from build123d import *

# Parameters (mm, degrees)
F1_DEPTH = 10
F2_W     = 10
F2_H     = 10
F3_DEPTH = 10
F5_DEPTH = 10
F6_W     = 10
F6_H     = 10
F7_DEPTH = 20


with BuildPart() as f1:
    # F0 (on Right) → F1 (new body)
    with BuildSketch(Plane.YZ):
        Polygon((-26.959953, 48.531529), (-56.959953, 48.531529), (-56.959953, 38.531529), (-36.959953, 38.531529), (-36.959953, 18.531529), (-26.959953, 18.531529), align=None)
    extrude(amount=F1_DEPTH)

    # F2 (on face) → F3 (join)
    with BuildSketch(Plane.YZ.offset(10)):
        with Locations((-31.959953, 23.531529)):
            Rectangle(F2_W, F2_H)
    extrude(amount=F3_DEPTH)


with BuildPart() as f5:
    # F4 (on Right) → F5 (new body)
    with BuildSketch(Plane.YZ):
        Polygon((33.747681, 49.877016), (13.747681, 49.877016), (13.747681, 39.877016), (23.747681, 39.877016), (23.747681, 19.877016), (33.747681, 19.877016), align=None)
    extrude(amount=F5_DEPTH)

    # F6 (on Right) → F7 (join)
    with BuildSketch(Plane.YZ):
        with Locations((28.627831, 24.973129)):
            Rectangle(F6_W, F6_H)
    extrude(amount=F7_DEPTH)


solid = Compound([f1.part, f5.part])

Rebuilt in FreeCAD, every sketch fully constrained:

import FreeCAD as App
import Part
import Sketcher

V = App.Vector

doc = App.newDocument("Part")
body = doc.addObject("PartDesign::Body", "Body")

# Sketch on YZ plane
sketch1 = body.newObject("Sketcher::SketchObject", "Sketch")
sketch1.AttachmentSupport = (doc.getObject("YZ_Plane"), [""])
sketch1.MapMode = "FlatFace"
sketch1.addGeometry(Part.LineSegment(V(-26.959953, 48.531529, 0), V(-56.959953, 48.531529, 0)), False)
sketch1.addGeometry(Part.LineSegment(V(-56.959953, 48.531529, 0), V(-56.959953, 38.531529, 0)), False)
sketch1.addGeometry(Part.LineSegment(V(-56.959953, 38.531529, 0), V(-36.959953, 38.531529, 0)), False)
sketch1.addGeometry(Part.LineSegment(V(-36.959953, 38.531529, 0), V(-36.959953, 18.531529, 0)), False)
sketch1.addGeometry(Part.LineSegment(V(-36.959953, 18.531529, 0), V(-26.959953, 18.531529, 0)), False)
sketch1.addGeometry(Part.LineSegment(V(-26.959953, 18.531529, 0), V(-26.959953, 48.531529, 0)), False)
sketch1.addConstraint(Sketcher.Constraint("Coincident", 0, 2, 1, 1))
sketch1.addConstraint(Sketcher.Constraint("Coincident", 1, 2, 2, 1))
sketch1.addConstraint(Sketcher.Constraint("Coincident", 2, 2, 3, 1))
sketch1.addConstraint(Sketcher.Constraint("Coincident", 3, 2, 4, 1))
sketch1.addConstraint(Sketcher.Constraint("Coincident", 4, 2, 5, 1))
sketch1.addConstraint(Sketcher.Constraint("Coincident", 5, 2, 0, 1))
sketch1.addConstraint(Sketcher.Constraint("Horizontal", 0))
sketch1.addConstraint(Sketcher.Constraint("Vertical", 1))
sketch1.addConstraint(Sketcher.Constraint("Horizontal", 2))
sketch1.addConstraint(Sketcher.Constraint("Vertical", 3))
sketch1.addConstraint(Sketcher.Constraint("Horizontal", 4))
sketch1.addConstraint(Sketcher.Constraint("Vertical", 5))
sketch1.addConstraint(Sketcher.Constraint("Equal", 4, 1))
sketch1.addConstraint(Sketcher.Constraint("Equal", 2, 3))
sketch1.addConstraint(Sketcher.Constraint("DistanceX", 0, 2, 0, 1, 30.0))
sketch1.addConstraint(Sketcher.Constraint("DistanceX", 2, 1, 2, 2, 20.0))
sketch1.addConstraint(Sketcher.Constraint("DistanceY", -1, 1, 0, 2, 48.531529))
sketch1.addConstraint(Sketcher.Constraint("DistanceX", 0, 2, -1, 1, 56.959953))
pad1 = body.newObject("PartDesign::Pad", "Pad")
pad1.Profile = sketch1
pad1.Length = 10

# Sketch on YZ plane
sketch2 = body.newObject("Sketcher::SketchObject", "Sketch001")
sketch2.AttachmentSupport = (doc.getObject("YZ_Plane"), [""])
sketch2.MapMode = "FlatFace"
sketch2.AttachmentOffset = App.Placement(V(0, 0, 10), App.Rotation())
sketch2.addGeometry(Part.LineSegment(V(-36.959953, 28.531529, 0), V(-36.959953, 18.531529, 0)), False)
sketch2.addGeometry(Part.LineSegment(V(-36.959953, 18.531529, 0), V(-26.959953, 18.531529, 0)), False)
sketch2.addGeometry(Part.LineSegment(V(-26.959953, 18.531529, 0), V(-26.959953, 28.531529, 0)), False)
sketch2.addGeometry(Part.LineSegment(V(-26.959953, 28.531529, 0), V(-36.959953, 28.531529, 0)), False)
sketch2.addConstraint(Sketcher.Constraint("Coincident", 0, 2, 1, 1))
sketch2.addConstraint(Sketcher.Constraint("Coincident", 1, 2, 2, 1))
sketch2.addConstraint(Sketcher.Constraint("Coincident", 2, 2, 3, 1))
sketch2.addConstraint(Sketcher.Constraint("Coincident", 3, 2, 0, 1))
sketch2.addConstraint(Sketcher.Constraint("Vertical", 0))
sketch2.addConstraint(Sketcher.Constraint("Horizontal", 1))
sketch2.addConstraint(Sketcher.Constraint("Vertical", 2))
sketch2.addConstraint(Sketcher.Constraint("Horizontal", 3))
sketch2.addConstraint(Sketcher.Constraint("Equal", 3, 0))
sketch2.addConstraint(Sketcher.Constraint("DistanceX", 1, 1, 1, 2, 10.0))
sketch2.addConstraint(Sketcher.Constraint("DistanceY", -1, 1, 0, 2, 18.531529))
sketch2.addConstraint(Sketcher.Constraint("DistanceX", 0, 2, -1, 1, 36.959953))
pad2 = body.newObject("PartDesign::Pad", "Pad001")
pad2.Profile = sketch2
pad2.Length = 10
body2 = doc.addObject("PartDesign::Body", "Body001")

# Sketch on YZ plane
sketch3 = body2.newObject("Sketcher::SketchObject", "Sketch002")
sketch3.AttachmentSupport = (doc.getObject("YZ_Plane001"), [""])
sketch3.MapMode = "FlatFace"
sketch3.addGeometry(Part.LineSegment(V(33.747681, 49.877016, 0), V(13.747681, 49.877016, 0)), False)
sketch3.addGeometry(Part.LineSegment(V(13.747681, 49.877016, 0), V(13.747681, 39.877016, 0)), False)
sketch3.addGeometry(Part.LineSegment(V(13.747681, 39.877016, 0), V(23.747681, 39.877016, 0)), False)
sketch3.addGeometry(Part.LineSegment(V(23.747681, 39.877016, 0), V(23.747681, 19.877016, 0)), False)
sketch3.addGeometry(Part.LineSegment(V(23.747681, 19.877016, 0), V(33.747681, 19.877016, 0)), False)
sketch3.addGeometry(Part.LineSegment(V(33.747681, 19.877016, 0), V(33.747681, 49.877016, 0)), False)
sketch3.addConstraint(Sketcher.Constraint("Coincident", 0, 2, 1, 1))
sketch3.addConstraint(Sketcher.Constraint("Coincident", 1, 2, 2, 1))
sketch3.addConstraint(Sketcher.Constraint("Coincident", 2, 2, 3, 1))
sketch3.addConstraint(Sketcher.Constraint("Coincident", 3, 2, 4, 1))
sketch3.addConstraint(Sketcher.Constraint("Coincident", 4, 2, 5, 1))
sketch3.addConstraint(Sketcher.Constraint("Coincident", 5, 2, 0, 1))
sketch3.addConstraint(Sketcher.Constraint("Horizontal", 0))
sketch3.addConstraint(Sketcher.Constraint("Vertical", 1))
sketch3.addConstraint(Sketcher.Constraint("Horizontal", 2))
sketch3.addConstraint(Sketcher.Constraint("Vertical", 3))
sketch3.addConstraint(Sketcher.Constraint("Horizontal", 4))
sketch3.addConstraint(Sketcher.Constraint("Vertical", 5))
sketch3.addConstraint(Sketcher.Constraint("Equal", 2, 4))
sketch3.addConstraint(Sketcher.Constraint("Equal", 4, 1))
sketch3.addConstraint(Sketcher.Constraint("Equal", 0, 3))
sketch3.addConstraint(Sketcher.Constraint("DistanceX", 0, 2, 0, 1, 20.0))
sketch3.addConstraint(Sketcher.Constraint("DistanceX", -1, 1, 0, 2, 13.747681))
sketch3.addConstraint(Sketcher.Constraint("DistanceY", -1, 1, 0, 2, 49.877016))
pad3 = body2.newObject("PartDesign::Pad", "Pad002")
pad3.Profile = sketch3
pad3.Length = 10

# Sketch on YZ plane
sketch4 = body2.newObject("Sketcher::SketchObject", "Sketch003")
sketch4.AttachmentSupport = (doc.getObject("YZ_Plane001"), [""])
sketch4.MapMode = "FlatFace"
sketch4.addGeometry(Part.LineSegment(V(23.627831, 29.973129, 0), V(23.627831, 19.973129, 0)), False)
sketch4.addGeometry(Part.LineSegment(V(23.627831, 19.973129, 0), V(33.627831, 19.973129, 0)), False)
sketch4.addGeometry(Part.LineSegment(V(33.627831, 19.973129, 0), V(33.627831, 29.973129, 0)), False)
sketch4.addGeometry(Part.LineSegment(V(33.627831, 29.973129, 0), V(23.627831, 29.973129, 0)), False)
sketch4.addConstraint(Sketcher.Constraint("Coincident", 0, 2, 1, 1))
sketch4.addConstraint(Sketcher.Constraint("Coincident", 1, 2, 2, 1))
sketch4.addConstraint(Sketcher.Constraint("Coincident", 2, 2, 3, 1))
sketch4.addConstraint(Sketcher.Constraint("Coincident", 3, 2, 0, 1))
sketch4.addConstraint(Sketcher.Constraint("Vertical", 0))
sketch4.addConstraint(Sketcher.Constraint("Horizontal", 1))
sketch4.addConstraint(Sketcher.Constraint("Vertical", 2))
sketch4.addConstraint(Sketcher.Constraint("Horizontal", 3))
sketch4.addConstraint(Sketcher.Constraint("Equal", 3, 0))
sketch4.addConstraint(Sketcher.Constraint("DistanceX", 1, 1, 1, 2, 10.0))
sketch4.addConstraint(Sketcher.Constraint("DistanceX", -1, 1, 0, 2, 23.627831))
sketch4.addConstraint(Sketcher.Constraint("DistanceY", -1, 1, 0, 2, 19.973129))
pad4 = body2.newObject("PartDesign::Pad", "Pad003")
pad4.Profile = sketch4
pad4.Length = 20

doc.recompute()
